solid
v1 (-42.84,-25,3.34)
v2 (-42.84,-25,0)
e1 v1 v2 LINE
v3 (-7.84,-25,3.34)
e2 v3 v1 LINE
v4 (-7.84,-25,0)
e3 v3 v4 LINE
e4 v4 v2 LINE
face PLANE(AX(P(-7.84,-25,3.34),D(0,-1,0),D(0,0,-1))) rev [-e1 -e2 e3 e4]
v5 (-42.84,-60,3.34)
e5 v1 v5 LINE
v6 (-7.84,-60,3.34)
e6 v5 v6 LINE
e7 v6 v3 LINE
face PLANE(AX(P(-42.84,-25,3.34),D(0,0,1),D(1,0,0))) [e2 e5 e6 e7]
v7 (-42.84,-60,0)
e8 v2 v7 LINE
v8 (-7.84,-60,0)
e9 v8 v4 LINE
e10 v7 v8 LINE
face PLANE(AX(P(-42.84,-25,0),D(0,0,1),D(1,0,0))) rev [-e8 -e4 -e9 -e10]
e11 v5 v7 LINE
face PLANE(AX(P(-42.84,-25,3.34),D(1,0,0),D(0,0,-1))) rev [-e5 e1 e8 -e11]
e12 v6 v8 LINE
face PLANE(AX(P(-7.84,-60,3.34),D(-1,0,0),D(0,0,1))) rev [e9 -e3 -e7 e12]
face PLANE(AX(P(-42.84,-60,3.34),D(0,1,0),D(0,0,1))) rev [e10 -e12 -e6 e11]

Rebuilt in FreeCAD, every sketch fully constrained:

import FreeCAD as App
import Part
import Sketcher

V = App.Vector
Q = App.Units.Quantity


def add_polygon(sketch, points):
    """Adds a closed chain of lines whose ends are joined by coincident constraints."""
    first, n = sketch.GeometryCount, len(points)
    for a, b in zip(points, points[1:] + points[:1]):
        sketch.addGeometry(Part.LineSegment(App.Vector(*a, 0), App.Vector(*b, 0)), False)
    for i in range(n):
        sketch.addConstraint(Sketcher.Constraint("Coincident", first + i, 2, first + (i + 1) % n, 1))

doc = App.newDocument("Part")
params = doc.addObject("Spreadsheet::Sheet", "Params")
for row, (alias, value) in enumerate([
    ("sketch1_width", "35 mm"),
    ("pad1_length", "3.34 mm"),
], start=1):
    params.set(f"A{row}", alias)
    params.set(f"B{row}", "=" + value)
    params.setAlias(f"B{row}", alias)

body = doc.addObject("PartDesign::Body", "Body")

# Sketch on XY plane
sketch1 = doc.addObject("Sketcher::SketchObject", "Sketch")
body.addObject(sketch1)
sketch1.AttachmentSupport = (doc.XY_Plane, [""])
sketch1.MapMode = "FlatFace"
add_polygon(sketch1, [(-43, -25), (-43, -60), (-8, -60), (-8, -25)])  # lines 0-3
sketch1.addConstraint(Sketcher.Constraint("Vertical", 0))
sketch1.addConstraint(Sketcher.Constraint("Horizontal", 1))
sketch1.addConstraint(Sketcher.Constraint("Vertical", 2))
sketch1.addConstraint(Sketcher.Constraint("Horizontal", 3))
sketch1.addConstraint(Sketcher.Constraint("Equal", 3, 0))
sketch1.addConstraint(Sketcher.Constraint("DistanceX", 1, 1, 1, 2, Q("35 mm")))
sketch1.addConstraint(Sketcher.Constraint("DistanceY", 0, 2, -1, 1, Q("60 mm")))
sketch1.addConstraint(Sketcher.Constraint("DistanceX", 0, 2, -1, 1, Q("42.84 mm")))
sketch1.setExpression("Constraints[9]", "Params.sketch1_width")
pad1 = doc.addObject("PartDesign::Pad", "Pad")
body.addObject(pad1)
pad1.Profile = sketch1
pad1.setExpression("Length", "Params.pad1_length")

doc.recompute()
